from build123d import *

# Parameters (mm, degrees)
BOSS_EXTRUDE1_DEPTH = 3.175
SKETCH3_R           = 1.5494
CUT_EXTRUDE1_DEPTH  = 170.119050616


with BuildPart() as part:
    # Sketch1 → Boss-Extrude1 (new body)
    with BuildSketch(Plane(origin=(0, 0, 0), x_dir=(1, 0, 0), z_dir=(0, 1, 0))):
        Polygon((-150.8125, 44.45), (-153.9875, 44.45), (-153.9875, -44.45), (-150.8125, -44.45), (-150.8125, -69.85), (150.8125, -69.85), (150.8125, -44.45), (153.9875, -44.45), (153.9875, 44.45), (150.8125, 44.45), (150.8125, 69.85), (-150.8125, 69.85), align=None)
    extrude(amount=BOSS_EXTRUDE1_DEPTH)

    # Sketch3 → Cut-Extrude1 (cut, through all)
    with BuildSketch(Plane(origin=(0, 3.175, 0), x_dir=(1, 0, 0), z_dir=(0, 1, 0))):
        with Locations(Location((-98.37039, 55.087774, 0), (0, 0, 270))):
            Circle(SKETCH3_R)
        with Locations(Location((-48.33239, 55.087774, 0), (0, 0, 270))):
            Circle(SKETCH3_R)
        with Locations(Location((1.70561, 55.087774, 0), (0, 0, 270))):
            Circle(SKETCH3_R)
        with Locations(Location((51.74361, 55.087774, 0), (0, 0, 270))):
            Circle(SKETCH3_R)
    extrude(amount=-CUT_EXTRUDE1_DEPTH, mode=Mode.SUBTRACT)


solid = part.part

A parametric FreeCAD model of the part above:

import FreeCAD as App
import Part
import Sketcher

V = App.Vector
Q = App.Units.Quantity

doc = App.newDocument("Part")
body = doc.addObject("PartDesign::Body", "Body")

sketch1 = body.newObject("Sketcher::SketchObject", "Sketch")
sketch1.AttachmentSupport = (doc.getObject("XZ_Plane"), [""])
sketch1.MapMode = "FlatFace"
sketch1.addGeometry([
    Part.LineSegment(V(-150.8125, -44.45, 0), V(-153.9875, -44.45, 0)),
    Part.LineSegment(V(-153.9875, -44.45, 0), V(-153.9875, 44.45, 0)),
    Part.LineSegment(V(-153.9875, 44.45, 0), V(-150.8125, 44.45, 0)),
    Part.LineSegment(V(-150.8125, 44.45, 0), V(-150.8125, 69.85, 0)),
    Part.LineSegment(V(-150.8125, 69.85, 0), V(150.8125, 69.85, 0)),
    Part.LineSegment(V(150.8125, 69.85, 0), V(150.8125, 44.45, 0)),
    Part.LineSegment(V(150.8125, 44.45, 0), V(153.9875, 44.45, 0)),
    Part.LineSegment(V(153.9875, 44.45, 0), V(153.9875, -44.45, 0)),
    Part.LineSegment(V(153.9875, -44.45, 0), V(150.8125, -44.45, 0)),
    Part.LineSegment(V(150.8125, -44.45, 0), V(150.8125, -69.85, 0)),
    Part.LineSegment(V(150.8125, -69.85, 0), V(-150.8125, -69.85, 0)),
    Part.LineSegment(V(-150.8125, -69.85, 0), V(-150.8125, -44.45, 0)),
], False)
sketch1.addConstraint([
    Sketcher.Constraint("Coincident", 0, 2, 1, 1),
    Sketcher.Constraint("Coincident", 1, 2, 2, 1),
    Sketcher.Constraint("Coincident", 2, 2, 3, 1),
    Sketcher.Constraint("Coincident", 3, 2, 4, 1),
    Sketcher.Constraint("Coincident", 4, 2, 5, 1),
    Sketcher.Constraint("Coincident", 5, 2, 6, 1),
    Sketcher.Constraint("Coincident", 6, 2, 7, 1),
    Sketcher.Constraint("Coincident", 7, 2, 8, 1),
    Sketcher.Constraint("Coincident", 8, 2, 9, 1),
    Sketcher.Constraint("Coincident", 9, 2, 10, 1),
    Sketcher.Constraint("Coincident", 10, 2, 11, 1),
    Sketcher.Constraint("Coincident", 11, 2, 0, 1),
    Sketcher.Constraint("Horizontal", 0),
    Sketcher.Constraint("Vertical", 1),
    Sketcher.Constraint("Horizontal", 2),
    Sketcher.Constraint("Vertical", 3),
    Sketcher.Constraint("Horizontal", 4),
    Sketcher.Constraint("Vertical", 5),
    Sketcher.Constraint("Horizontal", 6),
    Sketcher.Constraint("Vertical", 7),
    Sketcher.Constraint("Horizontal", 8),
    Sketcher.Constraint("Vertical", 9),
    Sketcher.Constraint("Horizontal", 10),
    Sketcher.Constraint("Vertical", 11),
    Sketcher.Constraint("Symmetric", 0, 2, 6, 2, -1, 1),
    Sketcher.Constraint("Symmetric", 2, 2, 8, 2, -1, 1),
    Sketcher.Constraint("Symmetric", 4, 2, 10, 2, -1, 1),
    Sketcher.Constraint("Symmetric", 2, 2, 5, 2, -2),
    Sketcher.Constraint("DistanceY", 3, 1, 3, 2, Q("1 in")),
    Sketcher.Constraint("DistanceY", 1, 1, 1, 2, Q("3.5 in")),
    Sketcher.Constraint("DistanceX", 1, 2, 4, 2, Q("12 in")),
    Sketcher.Constraint("DistanceX", 0, 2, 0, 1, Q("0.125 in")),
])
pad1 = body.newObject("PartDesign::Pad", "Pad")
pad1.Profile = sketch1
pad1.Length = Q("0.125 in")
pad1.Reversed = True

sketch2 = body.newObject("Sketcher::SketchObject", "Sketch001")
sketch2.AttachmentSupport = (doc.getObject("XZ_Plane"), [""])
sketch2.MapMode = "FlatFace"
sketch2.AttachmentOffset = App.Placement(V(0, 0, -0.125 * 25.4), App.Rotation())
sketch2.addGeometry([
    Part.Circle(V(-98.37039, -55.087774, 0), V(0, 0, 1), 1.5494),
    Part.Circle(V(-48.33239, -55.087774, 0), V(0, 0, 1), 1.5494),
    Part.Circle(V(1.70561, -55.087774, 0), V(0, 0, 1), 1.5494),
    Part.Circle(V(51.74361, -55.087774, 0), V(0, 0, 1), 1.5494),
], False)
sketch2.addConstraint([
    Sketcher.Constraint("Equal", 0, 1),
    Sketcher.Constraint("Equal", 1, 2),
    Sketcher.Constraint("Equal", 2, 3),
    Sketcher.Constraint("Horizontal", 0, 3, 1, 3),
    Sketcher.Constraint("Horizontal", 1, 3, 2, 3),
    Sketcher.Constraint("Horizontal", 2, 3, 3, 3),
    Sketcher.Constraint("Diameter", 0, Q("0.122 in")),
    Sketcher.Constraint("DistanceX", 0, 3, 1, 3, Q("1.97 in")),
    Sketcher.Constraint("DistanceX", 1, 3, 2, 3, Q("1.97 in")),
    Sketcher.Constraint("DistanceX", 2, 3, 3, 3, Q("1.97 in")),
    Sketcher.Constraint("DistanceX", 0, 3, -1, 1, Q("98.37039 mm")),
    Sketcher.Constraint("DistanceY", 0, 3, -1, 1, Q("55.087774 mm")),
])
pocket1 = body.newObject("PartDesign::Pocket", "Pocket")
pocket1.Profile = sketch2
pocket1.Type = "ThroughAll"
pocket1.Reversed = True

doc.recompute()
